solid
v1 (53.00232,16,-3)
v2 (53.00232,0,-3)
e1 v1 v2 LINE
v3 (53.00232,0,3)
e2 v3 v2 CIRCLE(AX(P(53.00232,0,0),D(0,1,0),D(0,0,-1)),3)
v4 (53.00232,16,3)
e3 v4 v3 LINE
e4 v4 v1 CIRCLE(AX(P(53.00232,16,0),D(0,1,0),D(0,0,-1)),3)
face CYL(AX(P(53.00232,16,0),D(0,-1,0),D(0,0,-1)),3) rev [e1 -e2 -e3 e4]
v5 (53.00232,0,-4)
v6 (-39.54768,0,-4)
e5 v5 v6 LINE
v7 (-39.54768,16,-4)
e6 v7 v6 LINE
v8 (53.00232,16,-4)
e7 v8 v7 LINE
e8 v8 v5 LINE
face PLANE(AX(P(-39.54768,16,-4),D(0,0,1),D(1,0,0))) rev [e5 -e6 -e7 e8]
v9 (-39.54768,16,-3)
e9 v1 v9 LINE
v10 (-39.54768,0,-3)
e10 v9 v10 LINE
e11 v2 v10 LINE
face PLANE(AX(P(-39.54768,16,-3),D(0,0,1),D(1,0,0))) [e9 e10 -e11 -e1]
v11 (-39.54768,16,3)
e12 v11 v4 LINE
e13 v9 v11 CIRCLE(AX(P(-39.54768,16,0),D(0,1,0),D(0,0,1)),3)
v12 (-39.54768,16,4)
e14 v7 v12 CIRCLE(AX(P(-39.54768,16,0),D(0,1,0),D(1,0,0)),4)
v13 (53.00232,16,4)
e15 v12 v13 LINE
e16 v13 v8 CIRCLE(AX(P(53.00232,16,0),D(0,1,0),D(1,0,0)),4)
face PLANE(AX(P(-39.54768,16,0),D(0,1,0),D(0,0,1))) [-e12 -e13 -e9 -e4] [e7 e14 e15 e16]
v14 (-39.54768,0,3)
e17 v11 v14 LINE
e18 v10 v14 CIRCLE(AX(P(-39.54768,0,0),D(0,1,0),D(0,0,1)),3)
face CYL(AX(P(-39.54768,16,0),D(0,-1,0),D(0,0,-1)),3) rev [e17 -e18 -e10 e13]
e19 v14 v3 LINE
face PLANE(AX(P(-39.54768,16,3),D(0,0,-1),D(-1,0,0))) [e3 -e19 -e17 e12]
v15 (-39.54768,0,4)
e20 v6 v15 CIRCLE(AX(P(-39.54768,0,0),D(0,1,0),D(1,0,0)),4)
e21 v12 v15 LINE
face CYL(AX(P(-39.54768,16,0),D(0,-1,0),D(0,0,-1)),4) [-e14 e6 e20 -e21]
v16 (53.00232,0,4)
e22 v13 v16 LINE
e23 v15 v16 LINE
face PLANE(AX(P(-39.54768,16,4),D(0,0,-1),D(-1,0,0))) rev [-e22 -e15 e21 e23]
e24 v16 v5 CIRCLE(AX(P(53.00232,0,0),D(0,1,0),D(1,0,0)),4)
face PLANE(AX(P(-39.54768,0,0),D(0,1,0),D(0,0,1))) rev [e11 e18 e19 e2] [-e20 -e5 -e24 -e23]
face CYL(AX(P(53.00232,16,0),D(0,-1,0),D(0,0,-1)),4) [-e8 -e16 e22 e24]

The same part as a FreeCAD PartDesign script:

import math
import FreeCAD as App
import Part
import Sketcher
from FreeCAD import Vector

doc = App.newDocument("Part")
params = doc.addObject("Spreadsheet::Sheet", "Params")
for row, (alias, value) in enumerate([
    ("sketch1_radius", "4 mm"),
    ("sketch1_radius2", "3 mm"),
    ("sketch1_width", "92.55 mm"),
    ("pad1_length", "16 mm"),
], start=1):
    params.set(f"A{row}", alias)
    params.set(f"B{row}", "=" + value)
    params.setAlias(f"B{row}", alias)

body = doc.addObject("PartDesign::Body", "Body")

sketch1 = body.newObject("Sketcher::SketchObject", "Sketch")
sketch1.AttachmentSupport = (doc.getObject("XZ_Plane"), [""])
sketch1.MapMode = "FlatFace"
sketch1.addGeometry(Part.LineSegment(Vector(-39.54768, 4, 0), Vector(53.00232, 4, 0)), False)
sketch1.addGeometry(Part.ArcOfCircle(Part.Circle(Vector(53.00232, 0, 0), Vector(0, 0, 1), 4), math.radians(-90), math.radians(90)), False)
sketch1.addGeometry(Part.LineSegment(Vector(53.00232, -4, 0), Vector(-39.54768, -4, 0)), False)
sketch1.addGeometry(Part.ArcOfCircle(Part.Circle(Vector(-39.54768, 0, 0), Vector(0, 0, 1), 4), math.radians(90), math.radians(270)), False)
sketch1.addGeometry(Part.LineSegment(Vector(53.00232, 3, 0), Vector(-39.54768, 3, 0)), False)
sketch1.addGeometry(Part.ArcOfCircle(Part.Circle(Vector(-39.54768, 0, 0), Vector(0, 0, 1), 3), math.radians(90), math.radians(270)), False)
sketch1.addGeometry(Part.LineSegment(Vector(-39.54768, -3, 0), Vector(53.00232, -3, 0)), False)
sketch1.addGeometry(Part.ArcOfCircle(Part.Circle(Vector(53.00232, 0, 0), Vector(0, 0, 1), 3), math.radians(-90), math.radians(90)), False)
sketch1.addConstraint(Sketcher.Constraint("Tangent", 0, 2, 1, 2))
sketch1.addConstraint(Sketcher.Constraint("Tangent", 1, 1, 2, 1))
sketch1.addConstraint(Sketcher.Constraint("Tangent", 2, 2, 3, 2))
sketch1.addConstraint(Sketcher.Constraint("Tangent", 3, 1, 0, 1))
sketch1.addConstraint(Sketcher.Constraint("Tangent", 4, 2, 5, 1))
sketch1.addConstraint(Sketcher.Constraint("Tangent", 5, 2, 6, 1))
sketch1.addConstraint(Sketcher.Constraint("Tangent", 6, 2, 7, 1))
sketch1.addConstraint(Sketcher.Constraint("Tangent", 7, 2, 4, 1))
sketch1.addConstraint(Sketcher.Constraint("Horizontal", 0))
sketch1.addConstraint(Sketcher.Constraint("Horizontal", 2))
sketch1.addConstraint(Sketcher.Constraint("Horizontal", 4))
sketch1.addConstraint(Sketcher.Constraint("Horizontal", 6))
sketch1.addConstraint(Sketcher.Constraint("Coincident", 5, 3, 3, 3))
sketch1.addConstraint(Sketcher.Constraint("PointOnObject", 1, 3, -1))
sketch1.addConstraint(Sketcher.Constraint("Vertical", 7, 3, 0, 2))
sketch1.addConstraint(Sketcher.Constraint("Radius", 1, 4.0))
sketch1.addConstraint(Sketcher.Constraint("Radius", 5, 3.0))
sketch1.addConstraint(Sketcher.Constraint("DistanceX", 0, 1, 0, 2, 92.55))
sketch1.addConstraint(Sketcher.Constraint("DistanceX", -1, 1, 1, 3, 53.00232))
sketch1.setExpression("Constraints[15]", "Params.sketch1_radius")
sketch1.setExpression("Constraints[16]", "Params.sketch1_radius2")
sketch1.setExpression("Constraints[17]", "Params.sketch1_width")
pad1 = body.newObject("PartDesign::Pad", "Pad")
pad1.Profile = sketch1
pad1.setExpression("Length", "Params.pad1_length")
pad1.Reversed = True

doc.recompute()
